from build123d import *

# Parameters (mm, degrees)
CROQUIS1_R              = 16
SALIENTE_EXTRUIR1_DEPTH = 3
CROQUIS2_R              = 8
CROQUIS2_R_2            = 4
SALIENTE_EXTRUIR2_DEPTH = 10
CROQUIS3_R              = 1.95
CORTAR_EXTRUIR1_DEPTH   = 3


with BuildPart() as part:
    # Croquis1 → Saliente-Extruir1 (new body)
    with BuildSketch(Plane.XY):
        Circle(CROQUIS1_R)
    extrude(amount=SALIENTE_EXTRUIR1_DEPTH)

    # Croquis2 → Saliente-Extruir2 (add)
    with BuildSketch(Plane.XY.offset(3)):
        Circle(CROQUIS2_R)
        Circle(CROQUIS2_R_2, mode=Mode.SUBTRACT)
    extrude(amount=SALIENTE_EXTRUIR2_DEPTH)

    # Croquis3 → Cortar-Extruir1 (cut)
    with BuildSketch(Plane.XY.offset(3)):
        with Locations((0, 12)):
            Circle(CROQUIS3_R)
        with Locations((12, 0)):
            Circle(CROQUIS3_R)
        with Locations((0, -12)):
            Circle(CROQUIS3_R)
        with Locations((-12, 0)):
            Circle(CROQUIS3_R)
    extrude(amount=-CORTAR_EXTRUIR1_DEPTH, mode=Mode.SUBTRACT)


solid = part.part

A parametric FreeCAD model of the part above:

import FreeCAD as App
import Part
import Sketcher
from FreeCAD import Vector

doc = App.newDocument("Part")
body = doc.addObject("PartDesign::Body", "Body")

sketch1 = doc.addObject("Sketcher::SketchObject", "Sketch")
body.addObject(sketch1)
sketch1.AttachmentSupport = (doc.XY_Plane, [""])
sketch1.MapMode = "FlatFace"
sketch1.addGeometry(Part.Circle(Vector(0, 0, 0), Vector(0, 0, 1), 16), False)
sketch1.addConstraint([
    Sketcher.Constraint("Coincident", 0, 3, -1, 1),
    Sketcher.Constraint("Diameter", 0, 32.0),
])
pad1 = doc.addObject("PartDesign::Pad", "Pad")
body.addObject(pad1)
pad1.Profile = sketch1
pad1.Length = 3

sketch2 = doc.addObject("Sketcher::SketchObject", "Sketch001")
body.addObject(sketch2)
sketch2.AttachmentSupport = (doc.XY_Plane, [""])
sketch2.MapMode = "FlatFace"
sketch2.AttachmentOffset = App.Placement(Vector(0, 0, 3), App.Rotation())
sketch2.addGeometry([
    Part.Circle(Vector(0, 0, 0), Vector(0, 0, 1), 8),
    Part.Circle(Vector(0, 0, 0), Vector(0, 0, 1), 4),
], False)
sketch2.addConstraint([
    Sketcher.Constraint("Coincident", 0, 3, -1, 1),
    Sketcher.Constraint("Coincident", 1, 3, -1, 1),
    Sketcher.Constraint("Diameter", 0, 16.0),
    Sketcher.Constraint("Diameter", 1, 8.0),
])
pad2 = doc.addObject("PartDesign::Pad", "Pad001")
body.addObject(pad2)
pad2.Profile = sketch2
pad2.Length = 10

sketch3 = doc.addObject("Sketcher::SketchObject", "Sketch002")
body.addObject(sketch3)
sketch3.AttachmentSupport = (doc.XY_Plane, [""])
sketch3.MapMode = "FlatFace"
sketch3.AttachmentOffset = App.Placement(Vector(0, 0, 3), App.Rotation())
sketch3.addGeometry([
    Part.Circle(Vector(0, 12, 0), Vector(0, 0, 1), 1.95),
    Part.Circle(Vector(12, 0, 0), Vector(0, 0, 1), 1.95),
    Part.Circle(Vector(0, -12, 0), Vector(0, 0, 1), 1.95),
    Part.Circle(Vector(-12, 0, 0), Vector(0, 0, 1), 1.95),
], False)
sketch3.addConstraint([
    Sketcher.Constraint("Equal", 0, 1),
    Sketcher.Constraint("Equal", 1, 2),
    Sketcher.Constraint("Equal", 2, 3),
    Sketcher.Constraint("Symmetric", 0, 3, 2, 3, -1, 1),
    Sketcher.Constraint("Symmetric", 1, 3, 3, 3, -1, 1),
    Sketcher.Constraint("PointOnObject", 0, 3, -2),
    Sketcher.Constraint("PointOnObject", 1, 3, -1),
    Sketcher.Constraint("Diameter", 0, 3.9),
    Sketcher.Constraint("DistanceY", -1, 1, 0, 3, 12.0),
    Sketcher.Constraint("DistanceX", -1, 1, 1, 3, 12.0),
])
pocket1 = doc.addObject("PartDesign::Pocket", "Pocket")
body.addObject(pocket1)
pocket1.Profile = sketch3
pocket1.Length = 3

doc.recompute()
